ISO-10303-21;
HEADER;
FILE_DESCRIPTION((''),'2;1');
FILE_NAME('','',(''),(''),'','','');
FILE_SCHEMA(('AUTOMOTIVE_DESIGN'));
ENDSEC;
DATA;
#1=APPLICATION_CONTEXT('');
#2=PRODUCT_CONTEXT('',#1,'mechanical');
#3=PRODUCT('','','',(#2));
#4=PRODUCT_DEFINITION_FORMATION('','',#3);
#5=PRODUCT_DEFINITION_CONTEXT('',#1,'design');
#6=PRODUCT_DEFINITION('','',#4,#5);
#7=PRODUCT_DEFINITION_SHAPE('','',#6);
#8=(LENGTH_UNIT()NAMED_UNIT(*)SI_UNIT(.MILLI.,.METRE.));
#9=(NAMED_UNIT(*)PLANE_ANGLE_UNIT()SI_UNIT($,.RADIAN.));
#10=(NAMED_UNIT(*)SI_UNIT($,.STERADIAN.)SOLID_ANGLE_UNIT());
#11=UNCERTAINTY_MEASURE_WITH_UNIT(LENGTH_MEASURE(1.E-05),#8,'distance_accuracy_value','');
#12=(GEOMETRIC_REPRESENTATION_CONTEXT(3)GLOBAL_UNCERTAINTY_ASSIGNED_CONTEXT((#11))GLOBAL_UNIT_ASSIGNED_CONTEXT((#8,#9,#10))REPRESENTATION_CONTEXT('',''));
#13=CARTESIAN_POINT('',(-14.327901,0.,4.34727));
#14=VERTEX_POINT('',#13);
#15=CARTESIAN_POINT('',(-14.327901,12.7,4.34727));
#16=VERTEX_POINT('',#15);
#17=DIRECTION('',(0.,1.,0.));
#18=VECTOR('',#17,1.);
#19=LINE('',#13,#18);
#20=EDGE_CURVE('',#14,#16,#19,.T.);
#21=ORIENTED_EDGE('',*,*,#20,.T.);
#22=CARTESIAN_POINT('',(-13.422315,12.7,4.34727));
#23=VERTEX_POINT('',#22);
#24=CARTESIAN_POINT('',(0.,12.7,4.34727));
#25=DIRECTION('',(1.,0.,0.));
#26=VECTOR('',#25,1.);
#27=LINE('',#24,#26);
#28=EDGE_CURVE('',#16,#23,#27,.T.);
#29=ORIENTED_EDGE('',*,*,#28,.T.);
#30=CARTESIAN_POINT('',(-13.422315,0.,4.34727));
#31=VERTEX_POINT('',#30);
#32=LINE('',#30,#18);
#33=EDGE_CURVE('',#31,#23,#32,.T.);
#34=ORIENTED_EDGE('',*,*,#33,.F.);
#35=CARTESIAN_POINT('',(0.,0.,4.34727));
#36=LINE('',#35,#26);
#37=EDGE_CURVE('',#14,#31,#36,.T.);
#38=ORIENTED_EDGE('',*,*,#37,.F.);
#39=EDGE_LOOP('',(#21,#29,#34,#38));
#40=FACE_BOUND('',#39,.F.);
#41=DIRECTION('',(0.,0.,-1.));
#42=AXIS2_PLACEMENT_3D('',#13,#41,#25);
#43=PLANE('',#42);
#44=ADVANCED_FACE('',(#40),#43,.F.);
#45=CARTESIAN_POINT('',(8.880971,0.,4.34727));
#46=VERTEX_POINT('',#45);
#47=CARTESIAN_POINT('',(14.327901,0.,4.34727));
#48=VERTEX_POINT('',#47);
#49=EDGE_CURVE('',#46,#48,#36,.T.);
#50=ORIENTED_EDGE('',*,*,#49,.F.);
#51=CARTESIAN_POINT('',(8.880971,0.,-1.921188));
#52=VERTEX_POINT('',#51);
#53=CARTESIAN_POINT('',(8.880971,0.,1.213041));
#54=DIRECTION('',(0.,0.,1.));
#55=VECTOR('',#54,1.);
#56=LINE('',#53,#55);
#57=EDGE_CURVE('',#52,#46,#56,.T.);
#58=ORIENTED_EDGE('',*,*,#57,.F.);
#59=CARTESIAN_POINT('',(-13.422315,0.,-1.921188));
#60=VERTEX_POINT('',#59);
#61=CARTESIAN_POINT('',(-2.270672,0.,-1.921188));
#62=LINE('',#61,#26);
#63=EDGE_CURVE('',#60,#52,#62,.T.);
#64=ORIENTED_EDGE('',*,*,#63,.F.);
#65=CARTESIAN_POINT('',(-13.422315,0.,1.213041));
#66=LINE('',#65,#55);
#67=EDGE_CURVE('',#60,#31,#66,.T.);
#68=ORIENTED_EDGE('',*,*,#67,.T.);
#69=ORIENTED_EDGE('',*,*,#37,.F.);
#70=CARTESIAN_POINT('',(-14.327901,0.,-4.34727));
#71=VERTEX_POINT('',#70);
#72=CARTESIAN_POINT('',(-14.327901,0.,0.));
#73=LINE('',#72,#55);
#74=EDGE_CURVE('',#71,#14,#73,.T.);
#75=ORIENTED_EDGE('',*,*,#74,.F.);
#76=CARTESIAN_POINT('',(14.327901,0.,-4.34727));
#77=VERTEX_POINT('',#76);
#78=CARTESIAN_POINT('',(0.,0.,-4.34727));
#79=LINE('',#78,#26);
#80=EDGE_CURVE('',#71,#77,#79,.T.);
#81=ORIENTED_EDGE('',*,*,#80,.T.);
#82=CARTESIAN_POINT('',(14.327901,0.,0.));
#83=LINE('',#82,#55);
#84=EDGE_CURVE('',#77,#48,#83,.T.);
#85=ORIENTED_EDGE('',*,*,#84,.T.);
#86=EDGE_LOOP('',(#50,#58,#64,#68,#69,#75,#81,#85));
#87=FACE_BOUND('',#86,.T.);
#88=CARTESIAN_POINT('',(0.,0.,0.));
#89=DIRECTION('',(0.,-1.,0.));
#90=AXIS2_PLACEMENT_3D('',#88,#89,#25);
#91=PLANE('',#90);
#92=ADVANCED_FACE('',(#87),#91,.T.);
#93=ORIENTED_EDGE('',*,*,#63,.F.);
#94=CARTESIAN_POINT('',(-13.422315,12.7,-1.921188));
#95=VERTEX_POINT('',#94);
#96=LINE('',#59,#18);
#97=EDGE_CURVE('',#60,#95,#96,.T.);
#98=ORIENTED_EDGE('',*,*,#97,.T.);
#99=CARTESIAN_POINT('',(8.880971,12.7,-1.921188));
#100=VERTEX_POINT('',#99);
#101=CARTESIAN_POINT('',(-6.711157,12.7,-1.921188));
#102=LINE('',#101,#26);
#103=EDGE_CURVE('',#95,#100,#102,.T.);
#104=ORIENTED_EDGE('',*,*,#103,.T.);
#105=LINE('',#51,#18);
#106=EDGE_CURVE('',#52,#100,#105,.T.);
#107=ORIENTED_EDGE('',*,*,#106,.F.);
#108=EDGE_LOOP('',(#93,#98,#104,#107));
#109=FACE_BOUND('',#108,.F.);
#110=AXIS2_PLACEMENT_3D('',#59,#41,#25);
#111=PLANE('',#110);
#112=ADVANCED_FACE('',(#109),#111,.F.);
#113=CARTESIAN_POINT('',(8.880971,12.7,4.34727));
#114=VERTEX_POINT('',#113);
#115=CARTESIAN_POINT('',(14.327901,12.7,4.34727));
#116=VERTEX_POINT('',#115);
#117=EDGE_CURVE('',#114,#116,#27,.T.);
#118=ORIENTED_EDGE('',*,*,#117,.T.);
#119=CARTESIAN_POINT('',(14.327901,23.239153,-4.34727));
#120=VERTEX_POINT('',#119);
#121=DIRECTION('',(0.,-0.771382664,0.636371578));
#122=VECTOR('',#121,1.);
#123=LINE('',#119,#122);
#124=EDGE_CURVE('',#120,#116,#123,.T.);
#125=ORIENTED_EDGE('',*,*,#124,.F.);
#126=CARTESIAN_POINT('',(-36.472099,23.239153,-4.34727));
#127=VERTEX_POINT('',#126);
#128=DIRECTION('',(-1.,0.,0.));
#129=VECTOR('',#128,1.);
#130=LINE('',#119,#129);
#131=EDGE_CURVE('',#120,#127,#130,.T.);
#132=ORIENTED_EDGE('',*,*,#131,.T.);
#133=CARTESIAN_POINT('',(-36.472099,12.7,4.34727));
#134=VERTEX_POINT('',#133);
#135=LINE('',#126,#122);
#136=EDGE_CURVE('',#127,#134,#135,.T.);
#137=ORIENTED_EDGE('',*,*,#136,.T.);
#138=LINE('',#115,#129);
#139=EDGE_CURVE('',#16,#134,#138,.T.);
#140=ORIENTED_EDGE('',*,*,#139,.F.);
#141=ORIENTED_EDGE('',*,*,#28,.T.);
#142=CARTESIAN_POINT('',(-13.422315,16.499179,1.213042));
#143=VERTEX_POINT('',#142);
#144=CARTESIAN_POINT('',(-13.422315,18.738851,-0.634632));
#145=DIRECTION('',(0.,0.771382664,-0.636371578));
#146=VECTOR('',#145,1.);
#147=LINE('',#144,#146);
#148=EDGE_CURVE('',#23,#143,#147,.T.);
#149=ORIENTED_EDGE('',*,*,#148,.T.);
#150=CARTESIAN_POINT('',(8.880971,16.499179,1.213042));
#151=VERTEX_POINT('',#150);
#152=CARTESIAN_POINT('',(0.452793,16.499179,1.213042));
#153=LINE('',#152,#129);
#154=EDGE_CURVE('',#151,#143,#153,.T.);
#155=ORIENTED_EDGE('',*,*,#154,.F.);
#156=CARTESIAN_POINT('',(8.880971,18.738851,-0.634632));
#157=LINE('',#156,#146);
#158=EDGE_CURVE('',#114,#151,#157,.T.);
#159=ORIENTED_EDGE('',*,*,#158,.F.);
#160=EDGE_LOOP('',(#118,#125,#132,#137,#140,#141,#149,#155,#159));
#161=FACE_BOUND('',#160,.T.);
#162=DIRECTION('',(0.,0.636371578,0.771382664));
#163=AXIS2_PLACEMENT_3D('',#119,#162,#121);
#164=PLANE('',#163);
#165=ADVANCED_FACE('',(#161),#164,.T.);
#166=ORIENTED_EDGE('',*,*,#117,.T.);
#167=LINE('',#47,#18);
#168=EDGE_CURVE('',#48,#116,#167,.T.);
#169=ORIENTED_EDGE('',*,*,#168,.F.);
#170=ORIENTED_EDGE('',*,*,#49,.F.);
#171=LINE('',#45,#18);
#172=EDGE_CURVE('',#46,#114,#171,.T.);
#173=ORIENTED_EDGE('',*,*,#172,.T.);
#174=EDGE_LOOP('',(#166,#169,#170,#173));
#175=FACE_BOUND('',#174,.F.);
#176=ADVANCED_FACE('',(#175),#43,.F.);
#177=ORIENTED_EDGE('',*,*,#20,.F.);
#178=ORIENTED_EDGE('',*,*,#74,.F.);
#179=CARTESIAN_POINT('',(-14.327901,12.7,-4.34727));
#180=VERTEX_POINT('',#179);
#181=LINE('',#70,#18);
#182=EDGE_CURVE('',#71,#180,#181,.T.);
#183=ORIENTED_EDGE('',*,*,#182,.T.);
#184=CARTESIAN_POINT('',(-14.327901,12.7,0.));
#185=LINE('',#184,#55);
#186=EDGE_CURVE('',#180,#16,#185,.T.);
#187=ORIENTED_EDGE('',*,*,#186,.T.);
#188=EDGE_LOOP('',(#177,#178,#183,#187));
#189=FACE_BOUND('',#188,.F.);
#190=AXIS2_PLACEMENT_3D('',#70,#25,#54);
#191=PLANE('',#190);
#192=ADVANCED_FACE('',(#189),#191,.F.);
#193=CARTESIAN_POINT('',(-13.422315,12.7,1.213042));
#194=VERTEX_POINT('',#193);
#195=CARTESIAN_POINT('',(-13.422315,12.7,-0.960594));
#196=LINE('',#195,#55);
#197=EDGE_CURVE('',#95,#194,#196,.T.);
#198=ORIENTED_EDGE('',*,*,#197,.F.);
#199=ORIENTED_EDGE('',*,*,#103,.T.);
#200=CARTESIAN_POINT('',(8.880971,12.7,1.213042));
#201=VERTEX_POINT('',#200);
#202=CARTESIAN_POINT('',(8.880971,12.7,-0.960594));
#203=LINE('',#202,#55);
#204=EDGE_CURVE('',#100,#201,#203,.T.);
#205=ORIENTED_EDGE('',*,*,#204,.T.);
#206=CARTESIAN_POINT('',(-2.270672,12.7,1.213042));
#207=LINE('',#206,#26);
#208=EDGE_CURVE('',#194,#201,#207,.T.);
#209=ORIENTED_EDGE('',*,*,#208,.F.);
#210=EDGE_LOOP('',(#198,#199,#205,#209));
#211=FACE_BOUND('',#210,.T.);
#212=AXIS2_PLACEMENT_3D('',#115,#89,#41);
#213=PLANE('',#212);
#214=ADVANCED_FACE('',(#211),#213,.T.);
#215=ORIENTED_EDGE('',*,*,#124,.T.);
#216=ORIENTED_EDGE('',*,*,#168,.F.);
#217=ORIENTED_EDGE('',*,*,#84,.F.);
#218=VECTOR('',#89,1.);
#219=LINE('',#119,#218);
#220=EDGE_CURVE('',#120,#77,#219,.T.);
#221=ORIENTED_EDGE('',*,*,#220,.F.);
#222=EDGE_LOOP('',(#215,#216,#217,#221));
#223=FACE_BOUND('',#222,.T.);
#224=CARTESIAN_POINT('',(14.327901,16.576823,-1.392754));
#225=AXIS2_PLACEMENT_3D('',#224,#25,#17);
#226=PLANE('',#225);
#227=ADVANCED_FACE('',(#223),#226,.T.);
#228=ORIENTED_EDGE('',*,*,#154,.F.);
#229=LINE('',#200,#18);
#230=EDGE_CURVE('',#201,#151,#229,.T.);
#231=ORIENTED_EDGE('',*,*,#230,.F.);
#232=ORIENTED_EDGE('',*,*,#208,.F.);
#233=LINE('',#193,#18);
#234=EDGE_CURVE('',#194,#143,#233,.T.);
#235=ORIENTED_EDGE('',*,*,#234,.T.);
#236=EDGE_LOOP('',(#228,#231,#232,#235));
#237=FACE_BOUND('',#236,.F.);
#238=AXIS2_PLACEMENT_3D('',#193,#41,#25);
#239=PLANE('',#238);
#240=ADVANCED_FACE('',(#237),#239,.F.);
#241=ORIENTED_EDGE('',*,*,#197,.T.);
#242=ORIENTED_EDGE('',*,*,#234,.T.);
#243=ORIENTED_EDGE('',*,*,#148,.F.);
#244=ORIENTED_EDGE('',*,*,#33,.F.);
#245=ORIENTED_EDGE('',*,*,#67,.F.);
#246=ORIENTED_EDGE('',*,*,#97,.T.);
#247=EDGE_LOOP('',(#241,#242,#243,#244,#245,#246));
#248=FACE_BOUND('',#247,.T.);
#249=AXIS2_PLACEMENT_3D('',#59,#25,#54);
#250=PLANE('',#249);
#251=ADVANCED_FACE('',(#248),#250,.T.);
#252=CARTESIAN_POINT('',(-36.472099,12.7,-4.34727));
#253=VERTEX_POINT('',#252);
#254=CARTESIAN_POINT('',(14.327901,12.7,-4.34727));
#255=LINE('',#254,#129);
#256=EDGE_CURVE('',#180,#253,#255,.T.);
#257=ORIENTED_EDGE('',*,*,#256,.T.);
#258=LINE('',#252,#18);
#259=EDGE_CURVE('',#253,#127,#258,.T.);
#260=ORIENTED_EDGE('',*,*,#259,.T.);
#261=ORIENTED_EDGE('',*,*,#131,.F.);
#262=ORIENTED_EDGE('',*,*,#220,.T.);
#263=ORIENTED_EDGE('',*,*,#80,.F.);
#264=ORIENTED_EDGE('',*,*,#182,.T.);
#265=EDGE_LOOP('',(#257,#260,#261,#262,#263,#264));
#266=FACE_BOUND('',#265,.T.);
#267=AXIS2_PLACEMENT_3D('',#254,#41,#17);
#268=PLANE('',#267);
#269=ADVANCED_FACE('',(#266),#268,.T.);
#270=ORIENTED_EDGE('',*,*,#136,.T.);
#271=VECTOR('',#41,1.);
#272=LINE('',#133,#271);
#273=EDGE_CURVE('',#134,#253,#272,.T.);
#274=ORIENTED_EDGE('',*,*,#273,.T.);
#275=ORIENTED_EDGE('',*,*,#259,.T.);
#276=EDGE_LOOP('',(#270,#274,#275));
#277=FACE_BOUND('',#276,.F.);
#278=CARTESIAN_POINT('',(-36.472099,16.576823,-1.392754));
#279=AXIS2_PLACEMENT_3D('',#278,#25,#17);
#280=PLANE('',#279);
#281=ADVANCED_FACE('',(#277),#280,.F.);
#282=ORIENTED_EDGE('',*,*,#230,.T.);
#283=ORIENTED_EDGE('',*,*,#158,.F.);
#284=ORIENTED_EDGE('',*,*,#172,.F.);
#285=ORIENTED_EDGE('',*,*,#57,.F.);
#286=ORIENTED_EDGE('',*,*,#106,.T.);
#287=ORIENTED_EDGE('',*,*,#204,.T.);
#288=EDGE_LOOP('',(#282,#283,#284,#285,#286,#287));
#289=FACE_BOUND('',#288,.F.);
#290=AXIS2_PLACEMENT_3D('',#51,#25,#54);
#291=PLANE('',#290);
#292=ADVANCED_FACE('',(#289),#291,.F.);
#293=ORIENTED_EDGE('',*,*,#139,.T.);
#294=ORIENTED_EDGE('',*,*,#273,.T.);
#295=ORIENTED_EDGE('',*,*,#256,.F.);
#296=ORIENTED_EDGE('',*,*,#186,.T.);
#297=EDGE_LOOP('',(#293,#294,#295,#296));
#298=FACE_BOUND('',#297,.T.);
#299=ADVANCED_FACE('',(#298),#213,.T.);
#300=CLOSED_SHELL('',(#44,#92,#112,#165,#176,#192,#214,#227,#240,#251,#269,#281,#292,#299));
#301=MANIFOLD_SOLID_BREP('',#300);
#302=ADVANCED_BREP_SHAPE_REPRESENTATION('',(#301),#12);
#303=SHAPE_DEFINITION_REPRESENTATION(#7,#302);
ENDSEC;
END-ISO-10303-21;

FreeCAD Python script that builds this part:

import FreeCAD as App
import Part
import Sketcher
Q = App.Units.Quantity

doc = App.newDocument("Part")
params = doc.addObject("Spreadsheet::Sheet", "Params")
for row, (alias, value) in enumerate([
    ("pad1_length", "0.5 in"),
    ("pocket1_length", "2 in"),
    ("pad2_length", "2 in"),
    ("pocket2_length", "1 in"),
], start=1):
    params.set(f"A{row}", alias)
    params.set(f"B{row}", "=" + value)
    params.setAlias(f"B{row}", alias)

body = doc.addObject("PartDesign::Body", "Body")

sketch1 = body.newObject("Sketcher::SketchObject", "Sketch")
sketch1.AttachmentSupport = (doc.getObject("XZ_Plane"), [""])
sketch1.MapMode = "FlatFace"
sketch1.addGeometry([
    Part.LineSegment(App.Vector(-14, 4, 0), App.Vector(-14, -4, 0)),
    Part.LineSegment(App.Vector(-14, -4, 0), App.Vector(14, -4, 0)),
    Part.LineSegment(App.Vector(14, -4, 0), App.Vector(14, 4, 0)),
    Part.LineSegment(App.Vector(14, 4, 0), App.Vector(-14, 4, 0)),
], False)
sketch1.addConstraint([
    Sketcher.Constraint("Coincident", 0, 2, 1, 1),
    Sketcher.Constraint("Coincident", 1, 2, 2, 1),
    Sketcher.Constraint("Coincident", 2, 2, 3, 1),
    Sketcher.Constraint("Coincident", 3, 2, 0, 1),
    Sketcher.Constraint("Vertical", 0),
    Sketcher.Constraint("Horizontal", 1),
    Sketcher.Constraint("Vertical", 2),
    Sketcher.Constraint("Horizontal", 3),
    Sketcher.Constraint("Symmetric", 0, 2, 2, 2, -1, 1),
    Sketcher.Constraint("DistanceY", 0, 2, 0, 1, Q("8.69454 mm")),
    Sketcher.Constraint("DistanceX", 0, 2, -1, 1, Q("14.327901 mm")),
])
pad1 = body.newObject("PartDesign::Pad", "Pad")
pad1.Profile = sketch1
pad1.setExpression("Length", "Params.pad1_length")
pad1.Reversed = True

sketch2 = body.newObject("Sketcher::SketchObject", "Sketch001")
sketch2.AttachmentSupport = (doc.getObject("XZ_Plane"), [""])
sketch2.MapMode = "FlatFace"
sketch2.addGeometry([
    Part.LineSegment(App.Vector(-13, 4, 0), App.Vector(-13, -2, 0)),
    Part.LineSegment(App.Vector(-13, -2, 0), App.Vector(9, -2, 0)),
    Part.LineSegment(App.Vector(9, -2, 0), App.Vector(9, 4, 0)),
    Part.LineSegment(App.Vector(9, 4, 0), App.Vector(-13, 4, 0)),
], False)
sketch2.addConstraint([
    Sketcher.Constraint("Coincident", 0, 2, 1, 1),
    Sketcher.Constraint("Coincident", 1, 2, 2, 1),
    Sketcher.Constraint("Coincident", 2, 2, 3, 1),
    Sketcher.Constraint("Coincident", 3, 2, 0, 1),
    Sketcher.Constraint("Vertical", 0),
    Sketcher.Constraint("Horizontal", 1),
    Sketcher.Constraint("Vertical", 2),
    Sketcher.Constraint("Horizontal", 3),
    Sketcher.Constraint("DistanceX", 1, 1, 1, 2, Q("22.303285 mm")),
    Sketcher.Constraint("DistanceY", 0, 2, 0, 1, Q("6.268458 mm")),
    Sketcher.Constraint("DistanceX", -1, 1, 1, 2, Q("8.880971 mm")),
    Sketcher.Constraint("DistanceY", -1, 1, 2, 2, Q("4.34727 mm")),
])
pocket1 = body.newObject("PartDesign::Pocket", "Pocket")
pocket1.Profile = sketch2
pocket1.setExpression("Length", "Params.pocket1_length")

sketch3 = body.newObject("Sketcher::SketchObject", "Sketch002")
sketch3.AttachmentSupport = (doc.getObject("YZ_Plane"), [""])
sketch3.MapMode = "FlatFace"
sketch3.AttachmentOffset = App.Placement(App.Vector(0, 0, 14.327901), App.Rotation())
sketch3.addGeometry([
    Part.LineSegment(App.Vector(13, 4, 0), App.Vector(13, -4, 0)),
    Part.LineSegment(App.Vector(13, -4, 0), App.Vector(23, -4, 0)),
    Part.LineSegment(App.Vector(23, -4, 0), App.Vector(13, 4, 0)),
], False)
sketch3.addConstraint([
    Sketcher.Constraint("Coincident", 0, 2, 1, 1),
    Sketcher.Constraint("Coincident", 1, 2, 2, 1),
    Sketcher.Constraint("Coincident", 2, 2, 0, 1),
    Sketcher.Constraint("Vertical", 0),
    Sketcher.Constraint("Horizontal", 1),
    Sketcher.Constraint("DistanceX", -1, 1, 0, 2, Q("0.5 in")),
    Sketcher.Constraint("DistanceY", 0, 2, 0, 1, Q("8.69454 mm")),
    Sketcher.Constraint("Distance", 2, Q("13.662678 mm")),
    Sketcher.Constraint("DistanceY", 0, 2, -1, 1, Q("4.34727 mm")),
])
pad2 = body.newObject("PartDesign::Pad", "Pad001")
pad2.Profile = sketch3
pad2.setExpression("Length", "Params.pad2_length")
pad2.Reversed = True

sketch4 = body.newObject("Sketcher::SketchObject", "Sketch003")
sketch4.AttachmentSupport = (doc.getObject("XZ_Plane"), [""])
sketch4.MapMode = "FlatFace"
sketch4.AttachmentOffset = App.Placement(App.Vector(0, 0, -0.5 * 25.4), App.Rotation())
sketch4.addGeometry([
    Part.LineSegment(App.Vector(-13.4, 4.3, 0), App.Vector(-13.4, 1.2, 0)),
    Part.LineSegment(App.Vector(-13.4, 1.2, 0), App.Vector(8.9, 1.2, 0)),
    Part.LineSegment(App.Vector(8.9, 1.2, 0), App.Vector(8.9, 4.3, 0)),
    Part.LineSegment(App.Vector(8.9, 4.3, 0), App.Vector(-13.4, 4.3, 0)),
], False)
sketch4.addConstraint([
    Sketcher.Constraint("Coincident", 0, 2, 1, 1),
    Sketcher.Constraint("Coincident", 1, 2, 2, 1),
    Sketcher.Constraint("Coincident", 2, 2, 3, 1),
    Sketcher.Constraint("Coincident", 3, 2, 0, 1),
    Sketcher.Constraint("Vertical", 0),
    Sketcher.Constraint("Horizontal", 1),
    Sketcher.Constraint("Vertical", 2),
    Sketcher.Constraint("Horizontal", 3),
    Sketcher.Constraint("DistanceY", 0, 2, 0, 1, Q("3.134229 mm")),
    Sketcher.Constraint("DistanceX", 1, 1, 1, 2, Q("22.303285 mm")),
    Sketcher.Constraint("DistanceY", -1, 1, 0, 2, Q("1.213042 mm")),
    Sketcher.Constraint("DistanceX", -1, 1, 1, 2, Q("8.880971 mm")),
])
pocket2 = body.newObject("PartDesign::Pocket", "Pocket001")
pocket2.Profile = sketch4
pocket2.setExpression("Length", "Params.pocket2_length")

doc.recompute()
